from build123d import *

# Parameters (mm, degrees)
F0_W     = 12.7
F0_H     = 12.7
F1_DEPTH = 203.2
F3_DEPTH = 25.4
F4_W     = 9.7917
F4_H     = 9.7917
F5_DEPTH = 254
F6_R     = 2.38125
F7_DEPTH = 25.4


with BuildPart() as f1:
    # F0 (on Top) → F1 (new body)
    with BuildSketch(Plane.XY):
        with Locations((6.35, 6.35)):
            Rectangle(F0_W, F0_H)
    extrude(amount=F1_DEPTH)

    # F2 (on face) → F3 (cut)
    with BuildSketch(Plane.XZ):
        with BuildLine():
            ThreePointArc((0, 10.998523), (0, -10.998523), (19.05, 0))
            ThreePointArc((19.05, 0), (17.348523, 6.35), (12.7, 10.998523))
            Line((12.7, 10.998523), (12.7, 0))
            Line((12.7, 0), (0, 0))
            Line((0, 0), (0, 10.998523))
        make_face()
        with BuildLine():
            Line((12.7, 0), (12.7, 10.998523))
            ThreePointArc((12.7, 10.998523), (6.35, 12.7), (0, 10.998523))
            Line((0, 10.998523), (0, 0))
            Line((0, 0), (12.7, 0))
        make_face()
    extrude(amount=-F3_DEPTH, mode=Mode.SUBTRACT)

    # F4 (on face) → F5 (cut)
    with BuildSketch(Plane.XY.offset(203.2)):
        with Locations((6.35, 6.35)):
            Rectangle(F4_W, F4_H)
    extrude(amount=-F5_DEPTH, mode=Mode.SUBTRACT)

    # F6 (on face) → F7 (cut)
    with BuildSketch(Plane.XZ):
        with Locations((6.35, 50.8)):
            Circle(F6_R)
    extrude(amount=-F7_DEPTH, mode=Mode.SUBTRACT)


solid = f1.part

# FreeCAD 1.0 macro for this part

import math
import FreeCAD as App
import Part
import Sketcher

V = App.Vector
Q = App.Units.Quantity


def add_polygon(sketch, points):
    """Adds a closed chain of lines whose ends are joined by coincident constraints."""
    first, n = sketch.GeometryCount, len(points)
    for a, b in zip(points, points[1:] + points[:1]):
        sketch.addGeometry(Part.LineSegment(App.Vector(*a, 0), App.Vector(*b, 0)), False)
    for i in range(n):
        sketch.addConstraint(Sketcher.Constraint("Coincident", first + i, 2, first + (i + 1) % n, 1))

doc = App.newDocument("Part")
body = doc.addObject("PartDesign::Body", "Body")

sketch1 = body.newObject("Sketcher::SketchObject", "Sketch")
sketch1.AttachmentSupport = (doc.getObject("XY_Plane"), [""])
sketch1.MapMode = "FlatFace"
add_polygon(sketch1, [(0, 13), (0, 0), (13, 0), (13, 13)])
sketch1.addConstraint([
    Sketcher.Constraint("Vertical", 0),
    Sketcher.Constraint("Horizontal", 1),
    Sketcher.Constraint("Vertical", 2),
    Sketcher.Constraint("Horizontal", 3),
    Sketcher.Constraint("Coincident", 0, 2, -1, 1),
    Sketcher.Constraint("Equal", 3, 0),
    Sketcher.Constraint("DistanceX", 1, 1, 1, 2, Q("0.5 in")),
])
pad1 = body.newObject("PartDesign::Pad", "Pad")
pad1.Profile = sketch1
pad1.Length = Q("8 in")

sketch2 = body.newObject("Sketcher::SketchObject", "Sketch001")
sketch2.AttachmentSupport = (doc.getObject("XZ_Plane"), [""])
sketch2.MapMode = "FlatFace"
sketch2.addGeometry([
    Part.ArcOfCircle(Part.Circle(V(6, 0, 0), V(0, 0, 1), 13), math.radians(120), math.radians(360)),
    Part.ArcOfCircle(Part.Circle(V(6, 0, 0), V(0, 0, 1), 13), math.radians(0), math.radians(60)),
    Part.ArcOfCircle(Part.Circle(V(6, 0, 0), V(0, 0, 1), 13), math.radians(60), math.radians(120)),
], False)
sketch2.addConstraint([
    Sketcher.Constraint("Tangent", 0, 2, 1, 1),
    Sketcher.Constraint("Tangent", 1, 2, 2, 1),
    Sketcher.Constraint("Tangent", 2, 2, 0, 1),
    Sketcher.Constraint("PointOnObject", 0, 3, -1),
    Sketcher.Constraint("PointOnObject", 0, 2, -1),
    Sketcher.Constraint("PointOnObject", 2, 2, -2),
    Sketcher.Constraint("Horizontal", 1, 2, 2, 2),
    Sketcher.Constraint("Radius", 0, Q("0.5 in")),
    Sketcher.Constraint("DistanceX", -1, 1, 1, 2, Q("0.5 in")),
])
pocket1 = body.newObject("PartDesign::Pocket", "Pocket")
pocket1.Profile = sketch2
pocket1.Length = Q("1 in")

sketch3 = body.newObject("Sketcher::SketchObject", "Sketch002")
sketch3.AttachmentSupport = (doc.getObject("XY_Plane"), [""])
sketch3.MapMode = "FlatFace"
sketch3.AttachmentOffset = App.Placement(V(0, 0, 8 * 25.4), App.Rotation())
add_polygon(sketch3, [(1, 11), (1, 1), (11, 1), (11, 11)])
sketch3.addConstraint([
    Sketcher.Constraint("Vertical", 0),
    Sketcher.Constraint("Horizontal", 1),
    Sketcher.Constraint("Vertical", 2),
    Sketcher.Constraint("Horizontal", 3),
    Sketcher.Constraint("Equal", 3, 0),
    Sketcher.Constraint("DistanceX", 1, 1, 1, 2, Q("0.3855 in")),
    Sketcher.Constraint("DistanceX", -1, 1, 0, 2, 1.45415),
    Sketcher.Constraint("DistanceY", -1, 1, 0, 2, 1.45415),
])
pocket2 = body.newObject("PartDesign::Pocket", "Pocket001")
pocket2.Profile = sketch3
pocket2.Length = Q("10 in")

sketch4 = body.newObject("Sketcher::SketchObject", "Sketch003")
sketch4.AttachmentSupport = (doc.getObject("XZ_Plane"), [""])
sketch4.MapMode = "FlatFace"
sketch4.addGeometry(Part.Circle(V(6.3, 50.8, 0), V(0, 0, 1), 2.4), False)
sketch4.addConstraint([
    Sketcher.Constraint("Diameter", 0, Q("0.1875 in")),
    Sketcher.Constraint("DistanceY", -1, 1, 0, 3, Q("2 in")),
    Sketcher.Constraint("DistanceX", -1, 1, 0, 3, Q("0.25 in")),
])
pocket3 = body.newObject("PartDesign::Pocket", "Pocket002")
pocket3.Profile = sketch4
pocket3.Length = Q("1 in")

doc.recompute()
